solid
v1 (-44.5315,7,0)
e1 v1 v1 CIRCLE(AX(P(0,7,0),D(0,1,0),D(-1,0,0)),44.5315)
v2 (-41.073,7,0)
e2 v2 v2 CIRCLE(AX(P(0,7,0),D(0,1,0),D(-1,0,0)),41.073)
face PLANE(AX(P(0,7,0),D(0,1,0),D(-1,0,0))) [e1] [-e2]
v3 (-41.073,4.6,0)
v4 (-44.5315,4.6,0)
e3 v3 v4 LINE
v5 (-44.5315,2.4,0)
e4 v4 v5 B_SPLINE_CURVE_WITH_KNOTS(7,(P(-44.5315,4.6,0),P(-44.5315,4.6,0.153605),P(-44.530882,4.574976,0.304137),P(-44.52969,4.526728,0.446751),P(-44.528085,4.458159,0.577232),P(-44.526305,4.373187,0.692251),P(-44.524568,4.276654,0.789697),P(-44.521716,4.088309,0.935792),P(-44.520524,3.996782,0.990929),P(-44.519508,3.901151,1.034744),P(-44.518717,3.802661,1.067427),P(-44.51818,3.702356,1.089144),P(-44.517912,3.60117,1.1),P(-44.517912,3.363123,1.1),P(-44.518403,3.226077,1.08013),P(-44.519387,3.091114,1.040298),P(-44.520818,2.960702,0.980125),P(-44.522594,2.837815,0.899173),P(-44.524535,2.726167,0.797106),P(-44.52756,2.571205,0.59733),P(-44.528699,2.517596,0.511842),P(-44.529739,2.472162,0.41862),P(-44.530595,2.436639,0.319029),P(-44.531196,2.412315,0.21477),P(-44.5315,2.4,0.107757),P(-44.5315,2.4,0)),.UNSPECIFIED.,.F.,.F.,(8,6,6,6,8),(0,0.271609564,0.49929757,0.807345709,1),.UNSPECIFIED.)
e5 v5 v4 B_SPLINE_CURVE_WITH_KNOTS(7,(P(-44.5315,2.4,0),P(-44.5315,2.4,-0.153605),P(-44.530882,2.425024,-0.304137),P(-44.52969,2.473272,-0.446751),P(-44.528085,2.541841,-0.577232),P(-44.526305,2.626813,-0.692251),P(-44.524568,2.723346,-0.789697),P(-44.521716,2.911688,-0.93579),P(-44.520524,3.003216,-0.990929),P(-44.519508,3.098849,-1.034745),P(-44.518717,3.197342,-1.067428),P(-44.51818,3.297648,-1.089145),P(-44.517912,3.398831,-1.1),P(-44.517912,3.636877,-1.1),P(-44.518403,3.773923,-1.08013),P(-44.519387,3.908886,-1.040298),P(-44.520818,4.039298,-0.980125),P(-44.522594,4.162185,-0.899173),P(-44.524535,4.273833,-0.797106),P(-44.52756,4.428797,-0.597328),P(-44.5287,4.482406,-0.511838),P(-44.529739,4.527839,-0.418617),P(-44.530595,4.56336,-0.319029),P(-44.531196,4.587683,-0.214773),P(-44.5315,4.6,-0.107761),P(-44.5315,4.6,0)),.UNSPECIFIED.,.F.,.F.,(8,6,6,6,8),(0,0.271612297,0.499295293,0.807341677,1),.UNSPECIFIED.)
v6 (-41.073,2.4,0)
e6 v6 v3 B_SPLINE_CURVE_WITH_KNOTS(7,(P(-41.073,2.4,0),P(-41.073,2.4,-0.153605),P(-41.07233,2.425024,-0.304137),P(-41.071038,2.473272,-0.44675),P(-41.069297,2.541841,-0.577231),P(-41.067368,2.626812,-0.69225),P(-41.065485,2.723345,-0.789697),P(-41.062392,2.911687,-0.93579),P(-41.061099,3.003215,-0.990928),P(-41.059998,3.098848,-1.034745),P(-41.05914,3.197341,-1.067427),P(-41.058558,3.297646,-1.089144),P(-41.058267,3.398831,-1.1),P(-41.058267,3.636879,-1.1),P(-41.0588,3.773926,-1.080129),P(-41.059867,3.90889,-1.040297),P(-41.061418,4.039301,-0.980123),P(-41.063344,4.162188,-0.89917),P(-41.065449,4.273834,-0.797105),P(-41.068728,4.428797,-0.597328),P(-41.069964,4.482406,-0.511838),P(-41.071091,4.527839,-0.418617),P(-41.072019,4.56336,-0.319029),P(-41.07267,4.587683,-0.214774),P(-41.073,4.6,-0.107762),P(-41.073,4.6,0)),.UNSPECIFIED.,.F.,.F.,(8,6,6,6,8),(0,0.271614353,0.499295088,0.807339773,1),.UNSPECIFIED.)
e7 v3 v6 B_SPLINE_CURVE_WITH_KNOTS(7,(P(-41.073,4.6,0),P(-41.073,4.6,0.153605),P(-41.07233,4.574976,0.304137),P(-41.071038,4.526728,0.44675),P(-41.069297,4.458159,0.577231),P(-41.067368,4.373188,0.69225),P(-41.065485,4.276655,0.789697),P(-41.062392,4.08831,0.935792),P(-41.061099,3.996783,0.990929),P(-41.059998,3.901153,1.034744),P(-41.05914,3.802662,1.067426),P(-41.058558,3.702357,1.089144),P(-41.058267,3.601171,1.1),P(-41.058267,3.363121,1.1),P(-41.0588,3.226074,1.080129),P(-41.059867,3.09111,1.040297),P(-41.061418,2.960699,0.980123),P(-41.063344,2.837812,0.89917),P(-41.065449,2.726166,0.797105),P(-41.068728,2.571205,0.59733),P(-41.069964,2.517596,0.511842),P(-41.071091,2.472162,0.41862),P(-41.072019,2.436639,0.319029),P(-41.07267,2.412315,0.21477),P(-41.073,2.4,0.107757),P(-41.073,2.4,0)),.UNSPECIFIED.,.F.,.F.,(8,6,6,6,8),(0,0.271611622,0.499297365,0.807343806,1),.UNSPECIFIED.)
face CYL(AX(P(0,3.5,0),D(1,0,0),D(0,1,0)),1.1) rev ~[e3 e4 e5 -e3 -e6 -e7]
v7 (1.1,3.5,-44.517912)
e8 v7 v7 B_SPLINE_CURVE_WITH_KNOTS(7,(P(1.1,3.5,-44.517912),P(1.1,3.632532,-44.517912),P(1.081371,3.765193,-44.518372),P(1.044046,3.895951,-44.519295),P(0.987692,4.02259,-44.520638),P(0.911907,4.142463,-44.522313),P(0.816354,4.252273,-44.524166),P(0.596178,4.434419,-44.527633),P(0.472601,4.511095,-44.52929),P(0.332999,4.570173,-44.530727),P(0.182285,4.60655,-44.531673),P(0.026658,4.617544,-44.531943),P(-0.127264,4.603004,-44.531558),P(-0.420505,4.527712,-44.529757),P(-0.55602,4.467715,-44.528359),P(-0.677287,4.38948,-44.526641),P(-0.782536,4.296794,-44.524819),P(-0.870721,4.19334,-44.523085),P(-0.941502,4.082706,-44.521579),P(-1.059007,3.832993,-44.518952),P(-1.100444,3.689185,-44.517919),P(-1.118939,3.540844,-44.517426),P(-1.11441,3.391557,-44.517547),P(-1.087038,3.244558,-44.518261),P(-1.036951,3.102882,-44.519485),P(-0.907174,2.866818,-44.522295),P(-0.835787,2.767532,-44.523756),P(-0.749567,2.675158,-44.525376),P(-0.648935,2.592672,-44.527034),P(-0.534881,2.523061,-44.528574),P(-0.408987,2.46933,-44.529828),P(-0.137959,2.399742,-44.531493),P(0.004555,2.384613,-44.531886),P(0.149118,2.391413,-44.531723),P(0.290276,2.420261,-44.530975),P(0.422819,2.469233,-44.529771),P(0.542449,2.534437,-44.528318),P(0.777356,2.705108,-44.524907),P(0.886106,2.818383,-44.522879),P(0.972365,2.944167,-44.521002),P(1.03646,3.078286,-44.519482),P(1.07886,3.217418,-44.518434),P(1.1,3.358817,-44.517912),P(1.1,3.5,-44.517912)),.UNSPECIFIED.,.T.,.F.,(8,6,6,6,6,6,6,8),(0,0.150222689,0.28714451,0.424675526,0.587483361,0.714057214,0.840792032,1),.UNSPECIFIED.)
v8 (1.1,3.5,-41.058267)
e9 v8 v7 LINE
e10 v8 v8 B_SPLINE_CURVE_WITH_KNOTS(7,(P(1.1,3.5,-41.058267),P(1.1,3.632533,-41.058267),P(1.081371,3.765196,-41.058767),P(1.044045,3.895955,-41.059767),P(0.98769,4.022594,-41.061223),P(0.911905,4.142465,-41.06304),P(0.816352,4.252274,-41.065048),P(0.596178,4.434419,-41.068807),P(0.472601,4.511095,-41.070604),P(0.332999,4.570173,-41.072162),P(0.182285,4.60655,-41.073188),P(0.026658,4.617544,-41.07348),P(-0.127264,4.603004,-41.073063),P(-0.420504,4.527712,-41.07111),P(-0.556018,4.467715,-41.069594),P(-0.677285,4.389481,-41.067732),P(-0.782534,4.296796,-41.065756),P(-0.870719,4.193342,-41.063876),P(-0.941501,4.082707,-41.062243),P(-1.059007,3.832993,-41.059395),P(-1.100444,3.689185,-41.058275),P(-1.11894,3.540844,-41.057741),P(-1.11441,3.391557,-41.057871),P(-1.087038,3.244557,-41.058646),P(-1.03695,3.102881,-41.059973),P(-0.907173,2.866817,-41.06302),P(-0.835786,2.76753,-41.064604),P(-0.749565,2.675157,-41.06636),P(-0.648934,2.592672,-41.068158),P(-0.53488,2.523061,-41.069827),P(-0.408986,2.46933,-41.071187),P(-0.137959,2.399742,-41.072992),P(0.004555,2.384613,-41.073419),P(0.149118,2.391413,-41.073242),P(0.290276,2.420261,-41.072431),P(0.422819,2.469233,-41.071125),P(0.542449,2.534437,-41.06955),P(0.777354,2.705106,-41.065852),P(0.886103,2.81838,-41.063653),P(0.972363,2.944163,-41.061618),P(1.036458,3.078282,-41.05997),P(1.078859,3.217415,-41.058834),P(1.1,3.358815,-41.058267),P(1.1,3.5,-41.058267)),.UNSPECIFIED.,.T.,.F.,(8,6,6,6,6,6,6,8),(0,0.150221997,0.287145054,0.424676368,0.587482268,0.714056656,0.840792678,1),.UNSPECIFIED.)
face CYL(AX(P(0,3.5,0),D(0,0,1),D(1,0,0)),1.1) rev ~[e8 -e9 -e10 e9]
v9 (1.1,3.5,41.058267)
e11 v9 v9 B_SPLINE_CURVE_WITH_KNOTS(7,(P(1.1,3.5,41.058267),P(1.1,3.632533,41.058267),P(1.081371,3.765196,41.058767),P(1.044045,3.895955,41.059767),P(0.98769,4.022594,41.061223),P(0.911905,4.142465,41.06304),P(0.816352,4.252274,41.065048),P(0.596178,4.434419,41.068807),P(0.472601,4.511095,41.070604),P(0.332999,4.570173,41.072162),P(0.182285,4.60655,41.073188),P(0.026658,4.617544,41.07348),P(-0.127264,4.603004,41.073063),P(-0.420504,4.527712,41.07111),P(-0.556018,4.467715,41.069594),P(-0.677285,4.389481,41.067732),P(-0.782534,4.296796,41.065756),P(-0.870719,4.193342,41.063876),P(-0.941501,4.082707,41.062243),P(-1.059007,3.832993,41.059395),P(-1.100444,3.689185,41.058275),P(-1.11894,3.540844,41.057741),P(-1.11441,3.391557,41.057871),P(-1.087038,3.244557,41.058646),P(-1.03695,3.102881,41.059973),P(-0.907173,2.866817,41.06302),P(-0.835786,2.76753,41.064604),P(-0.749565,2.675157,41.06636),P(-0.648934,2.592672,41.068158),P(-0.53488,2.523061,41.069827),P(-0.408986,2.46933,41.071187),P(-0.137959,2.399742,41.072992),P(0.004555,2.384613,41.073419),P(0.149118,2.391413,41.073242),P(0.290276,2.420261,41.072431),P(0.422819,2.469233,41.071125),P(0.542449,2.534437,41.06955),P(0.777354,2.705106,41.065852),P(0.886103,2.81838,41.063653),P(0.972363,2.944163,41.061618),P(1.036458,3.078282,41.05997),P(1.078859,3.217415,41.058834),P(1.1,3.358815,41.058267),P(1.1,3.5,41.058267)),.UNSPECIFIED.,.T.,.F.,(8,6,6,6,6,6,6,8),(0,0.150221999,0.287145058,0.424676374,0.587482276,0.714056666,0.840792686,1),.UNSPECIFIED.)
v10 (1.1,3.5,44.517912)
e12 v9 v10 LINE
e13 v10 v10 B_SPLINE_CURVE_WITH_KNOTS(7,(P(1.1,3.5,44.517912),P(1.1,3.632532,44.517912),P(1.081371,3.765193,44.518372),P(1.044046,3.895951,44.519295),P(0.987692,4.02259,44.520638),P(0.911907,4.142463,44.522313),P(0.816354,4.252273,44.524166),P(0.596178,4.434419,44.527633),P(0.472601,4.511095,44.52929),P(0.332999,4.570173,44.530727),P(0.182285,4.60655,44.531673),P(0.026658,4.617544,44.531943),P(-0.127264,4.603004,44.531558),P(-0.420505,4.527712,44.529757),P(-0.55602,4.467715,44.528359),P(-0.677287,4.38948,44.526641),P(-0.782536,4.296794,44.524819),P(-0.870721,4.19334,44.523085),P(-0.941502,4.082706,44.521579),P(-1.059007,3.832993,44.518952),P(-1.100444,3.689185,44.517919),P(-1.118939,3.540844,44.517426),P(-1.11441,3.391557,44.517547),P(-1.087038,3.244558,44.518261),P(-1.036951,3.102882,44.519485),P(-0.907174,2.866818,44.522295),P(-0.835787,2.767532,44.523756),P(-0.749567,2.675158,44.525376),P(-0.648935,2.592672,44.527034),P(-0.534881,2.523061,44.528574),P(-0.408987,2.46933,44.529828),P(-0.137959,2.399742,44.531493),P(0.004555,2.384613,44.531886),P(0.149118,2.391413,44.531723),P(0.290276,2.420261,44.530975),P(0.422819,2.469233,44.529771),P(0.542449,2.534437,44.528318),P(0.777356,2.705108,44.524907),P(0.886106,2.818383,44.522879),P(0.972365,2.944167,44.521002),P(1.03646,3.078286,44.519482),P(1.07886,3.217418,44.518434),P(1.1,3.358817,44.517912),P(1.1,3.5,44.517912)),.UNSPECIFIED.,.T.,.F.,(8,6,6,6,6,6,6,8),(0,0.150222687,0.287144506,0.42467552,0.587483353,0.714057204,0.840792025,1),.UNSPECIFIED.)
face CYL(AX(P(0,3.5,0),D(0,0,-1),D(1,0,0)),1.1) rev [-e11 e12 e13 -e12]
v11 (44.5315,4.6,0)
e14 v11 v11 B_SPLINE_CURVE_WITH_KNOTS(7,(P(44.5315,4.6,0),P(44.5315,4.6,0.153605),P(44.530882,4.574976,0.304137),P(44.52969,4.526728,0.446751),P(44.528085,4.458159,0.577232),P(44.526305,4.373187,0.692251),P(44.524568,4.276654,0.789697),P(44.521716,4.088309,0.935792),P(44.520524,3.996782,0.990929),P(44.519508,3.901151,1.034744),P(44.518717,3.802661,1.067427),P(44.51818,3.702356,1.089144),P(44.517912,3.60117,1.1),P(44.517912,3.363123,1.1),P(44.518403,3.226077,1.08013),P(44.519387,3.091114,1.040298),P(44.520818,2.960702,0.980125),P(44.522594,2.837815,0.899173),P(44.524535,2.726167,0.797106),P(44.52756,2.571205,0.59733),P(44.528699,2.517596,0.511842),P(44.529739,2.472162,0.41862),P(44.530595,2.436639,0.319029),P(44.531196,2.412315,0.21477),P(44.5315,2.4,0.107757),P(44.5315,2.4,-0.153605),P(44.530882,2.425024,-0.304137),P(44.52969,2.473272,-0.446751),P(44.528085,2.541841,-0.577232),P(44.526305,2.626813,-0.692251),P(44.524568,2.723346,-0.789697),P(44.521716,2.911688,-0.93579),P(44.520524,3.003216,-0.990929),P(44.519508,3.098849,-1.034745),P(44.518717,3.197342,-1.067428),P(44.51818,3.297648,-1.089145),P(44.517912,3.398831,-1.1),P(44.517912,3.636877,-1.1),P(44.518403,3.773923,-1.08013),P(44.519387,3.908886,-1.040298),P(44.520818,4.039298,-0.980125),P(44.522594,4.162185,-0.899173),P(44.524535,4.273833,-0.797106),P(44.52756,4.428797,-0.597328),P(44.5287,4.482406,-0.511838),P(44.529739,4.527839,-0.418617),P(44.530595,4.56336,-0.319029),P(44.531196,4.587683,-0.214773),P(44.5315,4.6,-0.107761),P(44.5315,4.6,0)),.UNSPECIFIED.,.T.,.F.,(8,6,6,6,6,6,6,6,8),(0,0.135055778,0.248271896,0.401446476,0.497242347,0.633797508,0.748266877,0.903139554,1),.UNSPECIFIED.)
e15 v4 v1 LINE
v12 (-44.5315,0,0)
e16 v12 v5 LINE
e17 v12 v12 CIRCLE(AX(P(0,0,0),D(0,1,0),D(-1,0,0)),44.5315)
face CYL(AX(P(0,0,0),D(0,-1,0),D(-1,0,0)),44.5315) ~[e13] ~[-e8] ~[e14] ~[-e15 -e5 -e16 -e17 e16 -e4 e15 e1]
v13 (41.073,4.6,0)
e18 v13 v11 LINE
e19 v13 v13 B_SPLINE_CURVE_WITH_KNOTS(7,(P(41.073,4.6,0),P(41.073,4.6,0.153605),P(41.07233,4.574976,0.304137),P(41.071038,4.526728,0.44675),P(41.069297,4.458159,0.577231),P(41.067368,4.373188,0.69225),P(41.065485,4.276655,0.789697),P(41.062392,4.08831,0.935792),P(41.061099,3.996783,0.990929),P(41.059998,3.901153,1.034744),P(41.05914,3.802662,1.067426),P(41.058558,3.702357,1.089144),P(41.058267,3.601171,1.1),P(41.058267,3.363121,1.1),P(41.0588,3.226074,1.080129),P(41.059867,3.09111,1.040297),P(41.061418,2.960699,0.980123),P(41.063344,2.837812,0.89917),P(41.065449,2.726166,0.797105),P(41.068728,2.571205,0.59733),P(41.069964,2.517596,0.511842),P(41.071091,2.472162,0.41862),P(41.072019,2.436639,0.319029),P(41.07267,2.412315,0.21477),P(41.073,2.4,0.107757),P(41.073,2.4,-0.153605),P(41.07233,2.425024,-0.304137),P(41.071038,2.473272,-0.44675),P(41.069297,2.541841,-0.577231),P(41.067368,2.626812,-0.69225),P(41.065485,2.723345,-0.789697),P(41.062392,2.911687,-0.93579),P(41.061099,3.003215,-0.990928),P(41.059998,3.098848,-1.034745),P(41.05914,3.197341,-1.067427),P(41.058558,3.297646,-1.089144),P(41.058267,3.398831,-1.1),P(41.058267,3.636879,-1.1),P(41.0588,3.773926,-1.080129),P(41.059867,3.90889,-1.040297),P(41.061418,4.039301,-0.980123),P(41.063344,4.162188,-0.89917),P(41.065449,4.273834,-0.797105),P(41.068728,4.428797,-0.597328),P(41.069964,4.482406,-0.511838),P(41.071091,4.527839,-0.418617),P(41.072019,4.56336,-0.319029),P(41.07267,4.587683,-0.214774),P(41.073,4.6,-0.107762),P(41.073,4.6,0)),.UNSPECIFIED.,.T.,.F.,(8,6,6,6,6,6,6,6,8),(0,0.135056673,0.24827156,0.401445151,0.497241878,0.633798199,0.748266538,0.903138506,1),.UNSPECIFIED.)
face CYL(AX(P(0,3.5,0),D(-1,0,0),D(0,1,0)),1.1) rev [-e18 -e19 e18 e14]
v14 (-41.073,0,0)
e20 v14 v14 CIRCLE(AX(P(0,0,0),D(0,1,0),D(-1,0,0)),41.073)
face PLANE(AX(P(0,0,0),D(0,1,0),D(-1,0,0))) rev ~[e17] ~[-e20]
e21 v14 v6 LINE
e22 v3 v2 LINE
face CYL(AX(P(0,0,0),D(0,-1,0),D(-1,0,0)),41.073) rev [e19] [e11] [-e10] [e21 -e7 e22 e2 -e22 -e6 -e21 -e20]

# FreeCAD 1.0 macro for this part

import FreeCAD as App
import Part
import Sketcher

V = App.Vector

doc = App.newDocument("Part")
params = doc.addObject("Spreadsheet::Sheet", "Params")
for row, (alias, value) in enumerate([
    ("pad1_length", "7 mm"),
    ("sketch2_diameter", "2.2 mm"),
    ("sketch3_diameter", "2.2 mm"),
], start=1):
    params.set(f"A{row}", alias)
    params.set(f"B{row}", "=" + value)
    params.setAlias(f"B{row}", alias)

body = doc.addObject("PartDesign::Body", "Body")

# Sketch on XZ plane
sketch1 = body.newObject("Sketcher::SketchObject", "Sketch")
sketch1.AttachmentSupport = (doc.getObject("XZ_Plane"), [""])
sketch1.MapMode = "FlatFace"
sketch1.addGeometry([
    Part.Circle(V(0, 0, 0), V(0, 0, 1), 45),
    Part.Circle(V(0, 0, 0), V(0, 0, 1), 41),
], False)
sketch1.addConstraint([
    Sketcher.Constraint("Coincident", 0, 3, -1, 1),
    Sketcher.Constraint("Coincident", 1, 3, -1, 1),
    Sketcher.Constraint("Diameter", 0, 89.063),
    Sketcher.Constraint("Diameter", 1, 82.146),
])
pad1 = body.newObject("PartDesign::Pad", "Pad")
pad1.Profile = sketch1
pad1.setExpression("Length", "Params.pad1_length")
pad1.Reversed = True

# Sketch on XY plane
sketch2 = body.newObject("Sketcher::SketchObject", "Sketch001")
sketch2.AttachmentSupport = (doc.getObject("XY_Plane"), [""])
sketch2.MapMode = "FlatFace"
sketch2.addGeometry(Part.Circle(V(0, 3.5, 0), V(0, 0, 1), 1.1), False)
sketch2.addConstraint([
    Sketcher.Constraint("PointOnObject", 0, 3, -2),
    Sketcher.Constraint("Diameter", 0, 2.2),
    Sketcher.Constraint("DistanceY", -1, 1, 0, 3, 3.5),
])
sketch2.setExpression("Constraints[1]", "Params.sketch2_diameter")
pocket1 = body.newObject("PartDesign::Pocket", "Pocket")
pocket1.Profile = sketch2
pocket1.Type = "ThroughAll"
pocket1.Midplane = True

# Sketch on YZ plane
sketch3 = body.newObject("Sketcher::SketchObject", "Sketch002")
sketch3.AttachmentSupport = (doc.getObject("YZ_Plane"), [""])
sketch3.MapMode = "FlatFace"
sketch3.addGeometry(Part.Circle(V(3.5, 0, 0), V(0, 0, 1), 1.1), False)
sketch3.addConstraint([
    Sketcher.Constraint("PointOnObject", 0, 3, -1),
    Sketcher.Constraint("Diameter", 0, 2.2),
    Sketcher.Constraint("DistanceX", -1, 1, 0, 3, 3.5),
])
sketch3.setExpression("Constraints[1]", "Params.sketch3_diameter")
pocket2 = body.newObject("PartDesign::Pocket", "Pocket001")
pocket2.Profile = sketch3
pocket2.Type = "ThroughAll"
pocket2.Midplane = True

doc.recompute()
